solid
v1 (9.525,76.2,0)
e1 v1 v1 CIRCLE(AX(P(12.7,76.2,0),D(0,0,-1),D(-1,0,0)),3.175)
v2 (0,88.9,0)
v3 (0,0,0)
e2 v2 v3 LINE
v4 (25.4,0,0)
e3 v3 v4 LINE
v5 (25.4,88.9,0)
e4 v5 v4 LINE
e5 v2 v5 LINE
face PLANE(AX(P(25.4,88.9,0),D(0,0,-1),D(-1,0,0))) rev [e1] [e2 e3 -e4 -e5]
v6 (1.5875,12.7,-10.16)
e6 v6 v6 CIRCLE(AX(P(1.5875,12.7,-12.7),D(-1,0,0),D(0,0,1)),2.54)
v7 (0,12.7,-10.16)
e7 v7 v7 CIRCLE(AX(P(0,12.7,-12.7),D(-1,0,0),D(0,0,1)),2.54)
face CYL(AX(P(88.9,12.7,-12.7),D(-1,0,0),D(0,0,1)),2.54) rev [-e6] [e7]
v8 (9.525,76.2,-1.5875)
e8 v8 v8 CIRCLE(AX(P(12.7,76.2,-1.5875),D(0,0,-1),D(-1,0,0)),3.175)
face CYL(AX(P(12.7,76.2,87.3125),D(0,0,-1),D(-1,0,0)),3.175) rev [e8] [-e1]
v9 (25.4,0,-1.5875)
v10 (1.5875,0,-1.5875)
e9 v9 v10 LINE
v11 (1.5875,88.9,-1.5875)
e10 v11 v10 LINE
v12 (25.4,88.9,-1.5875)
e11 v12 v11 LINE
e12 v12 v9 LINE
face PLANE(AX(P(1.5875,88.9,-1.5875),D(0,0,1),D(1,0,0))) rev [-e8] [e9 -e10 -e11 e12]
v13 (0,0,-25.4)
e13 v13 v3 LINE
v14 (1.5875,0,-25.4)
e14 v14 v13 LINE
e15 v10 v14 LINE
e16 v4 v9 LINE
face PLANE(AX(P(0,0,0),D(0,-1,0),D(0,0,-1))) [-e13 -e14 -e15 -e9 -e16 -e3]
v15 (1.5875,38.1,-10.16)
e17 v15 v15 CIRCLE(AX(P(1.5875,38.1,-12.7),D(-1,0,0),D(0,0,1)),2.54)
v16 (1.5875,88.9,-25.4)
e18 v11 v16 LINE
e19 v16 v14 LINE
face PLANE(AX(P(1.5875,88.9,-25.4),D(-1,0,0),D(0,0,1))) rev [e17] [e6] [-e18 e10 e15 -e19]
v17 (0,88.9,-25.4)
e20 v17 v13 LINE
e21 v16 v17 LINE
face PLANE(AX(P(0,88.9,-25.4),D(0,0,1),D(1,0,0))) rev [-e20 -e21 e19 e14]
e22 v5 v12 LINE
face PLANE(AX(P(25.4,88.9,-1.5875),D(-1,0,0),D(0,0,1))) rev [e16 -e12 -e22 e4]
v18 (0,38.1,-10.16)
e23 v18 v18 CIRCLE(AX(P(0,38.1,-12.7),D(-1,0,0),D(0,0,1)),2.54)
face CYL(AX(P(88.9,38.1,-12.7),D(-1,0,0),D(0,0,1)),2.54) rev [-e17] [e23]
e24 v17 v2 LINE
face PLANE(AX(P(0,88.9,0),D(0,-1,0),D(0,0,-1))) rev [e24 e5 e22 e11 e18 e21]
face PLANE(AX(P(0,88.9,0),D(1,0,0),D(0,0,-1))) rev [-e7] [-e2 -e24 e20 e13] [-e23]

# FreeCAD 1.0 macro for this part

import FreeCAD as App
import Part
import Sketcher
Q = App.Units.Quantity

doc = App.newDocument("Part")
body = doc.addObject("PartDesign::Body", "Body")

sketch1 = body.newObject("Sketcher::SketchObject", "Sketch")
sketch1.AttachmentSupport = (doc.getObject("XZ_Plane"), [""])
sketch1.MapMode = "FlatFace"
sketch1.addGeometry([
    Part.LineSegment(App.Vector(0, -25.4, 0), App.Vector(0, 0, 0)),
    Part.LineSegment(App.Vector(0, 0, 0), App.Vector(25.4, 0, 0)),
    Part.LineSegment(App.Vector(25.4, 0, 0), App.Vector(25.4, -1.6, 0)),
    Part.LineSegment(App.Vector(25.4, -1.6, 0), App.Vector(1.6, -1.6, 0)),
    Part.LineSegment(App.Vector(1.6, -1.6, 0), App.Vector(1.6, -25.4, 0)),
    Part.LineSegment(App.Vector(1.6, -25.4, 0), App.Vector(0, -25.4, 0)),
], False)
sketch1.addConstraint([
    Sketcher.Constraint("Coincident", 0, 2, 1, 1),
    Sketcher.Constraint("Coincident", 1, 2, 2, 1),
    Sketcher.Constraint("Coincident", 2, 2, 3, 1),
    Sketcher.Constraint("Coincident", 3, 2, 4, 1),
    Sketcher.Constraint("Coincident", 4, 2, 5, 1),
    Sketcher.Constraint("Coincident", 5, 2, 0, 1),
    Sketcher.Constraint("Vertical", 0),
    Sketcher.Constraint("Horizontal", 1),
    Sketcher.Constraint("Vertical", 2),
    Sketcher.Constraint("Horizontal", 3),
    Sketcher.Constraint("Vertical", 4),
    Sketcher.Constraint("Horizontal", 5),
    Sketcher.Constraint("Coincident", 0, 2, -1, 1),
    Sketcher.Constraint("Equal", 1, 0),
    Sketcher.Constraint("Equal", 5, 2),
    Sketcher.Constraint("DistanceX", 1, 1, 1, 2, Q("1 in")),
    Sketcher.Constraint("DistanceX", 3, 2, 3, 1, Q("0.9375 in")),
])
pad1 = body.newObject("PartDesign::Pad", "Pad")
pad1.Profile = sketch1
pad1.Length = Q("3.5 in")
pad1.Reversed = True

sketch2 = body.newObject("Sketcher::SketchObject", "Sketch001")
sketch2.AttachmentSupport = (doc.getObject("YZ_Plane"), [""])
sketch2.MapMode = "FlatFace"
sketch2.addGeometry([
    Part.Circle(App.Vector(38.1, -12.7, 0), App.Vector(0, 0, 1), 2.5),
    Part.Circle(App.Vector(12.7, -12.7, 0), App.Vector(0, 0, 1), 2.5),
], False)
sketch2.addConstraint([
    Sketcher.Constraint("Equal", 0, 1),
    Sketcher.Constraint("Horizontal", 0, 3, 1, 3),
    Sketcher.Constraint("Diameter", 0, Q("0.2 in")),
    Sketcher.Constraint("DistanceX", 1, 3, 0, 3, Q("1 in")),
    Sketcher.Constraint("DistanceX", -1, 1, 0, 3, Q("1.5 in")),
    Sketcher.Constraint("DistanceY", 0, 3, -1, 1, Q("0.5 in")),
])
pocket1 = body.newObject("PartDesign::Pocket", "Pocket")
pocket1.Profile = sketch2
pocket1.Length = Q("3.5 in")
pocket1.Reversed = True

sketch3 = body.newObject("Sketcher::SketchObject", "Sketch002")
sketch3.AttachmentSupport = (doc.getObject("XY_Plane"), [""])
sketch3.MapMode = "FlatFace"
sketch3.AttachmentOffset = App.Placement(App.Vector(0, 0, -0.0625 * 25.4), App.Rotation())
sketch3.addGeometry(Part.Circle(App.Vector(12.7, 76.2, 0), App.Vector(0, 0, 1), 3.2), False)
sketch3.addConstraint([
    Sketcher.Constraint("Diameter", 0, Q("0.25 in")),
    Sketcher.Constraint("DistanceY", -1, 1, 0, 3, Q("3 in")),
    Sketcher.Constraint("DistanceX", -1, 1, 0, 3, Q("0.5 in")),
])
pocket2 = body.newObject("PartDesign::Pocket", "Pocket001")
pocket2.Profile = sketch3
pocket2.Length = Q("3.5 in")
pocket2.Reversed = True

doc.recompute()
